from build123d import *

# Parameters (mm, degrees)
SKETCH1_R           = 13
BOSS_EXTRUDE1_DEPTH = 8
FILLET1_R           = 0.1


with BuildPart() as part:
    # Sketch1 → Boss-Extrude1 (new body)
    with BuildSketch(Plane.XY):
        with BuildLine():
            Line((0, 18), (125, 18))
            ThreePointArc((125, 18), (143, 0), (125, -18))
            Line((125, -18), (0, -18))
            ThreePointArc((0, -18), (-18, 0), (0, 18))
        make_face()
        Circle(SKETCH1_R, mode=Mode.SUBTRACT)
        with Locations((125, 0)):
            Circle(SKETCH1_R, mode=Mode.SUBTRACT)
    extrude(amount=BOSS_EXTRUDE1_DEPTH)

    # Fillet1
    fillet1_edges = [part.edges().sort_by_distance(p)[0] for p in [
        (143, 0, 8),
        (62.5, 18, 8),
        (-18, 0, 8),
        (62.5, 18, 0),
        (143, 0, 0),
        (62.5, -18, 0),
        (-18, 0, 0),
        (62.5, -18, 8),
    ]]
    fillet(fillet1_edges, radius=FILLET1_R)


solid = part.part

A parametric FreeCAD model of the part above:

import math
import FreeCAD as App
import Part
import Sketcher


def edges_at(feature, points):
    """Names of the edges that pass closest to the given points."""
    edges = feature.Shape.Edges
    near = lambda p: min(range(len(edges)), key=lambda i: edges[i].distToShape(Part.Vertex(*p))[0])
    return sorted({f"Edge{near(p) + 1}" for p in points})

doc = App.newDocument("Part")
params = doc.addObject("Spreadsheet::Sheet", "Params")
for row, (alias, value) in enumerate([
    ("sketch1_diameter", "26 mm"),
    ("sketch1_radius", "18 mm"),
    ("sketch1_width", "125 mm"),
    ("pad1_length", "8 mm"),
    ("fillet_radius", "0.1 mm"),
], start=1):
    params.set(f"A{row}", alias)
    params.set(f"B{row}", "=" + value)
    params.setAlias(f"B{row}", alias)

body = doc.addObject("PartDesign::Body", "Body")

# Sketch on XY plane
sketch1 = doc.addObject("Sketcher::SketchObject", "Sketch")
body.addObject(sketch1)
sketch1.AttachmentSupport = (doc.XY_Plane, [""])
sketch1.MapMode = "FlatFace"
sketch1.addGeometry(Part.LineSegment(App.Vector(125, 18, 0), App.Vector(0, 18, 0)), False)
sketch1.addGeometry(Part.ArcOfCircle(Part.Circle(App.Vector(0, 0, 0), App.Vector(0, 0, 1), 18), math.radians(90), math.radians(270)), False)
sketch1.addGeometry(Part.LineSegment(App.Vector(0, -18, 0), App.Vector(125, -18, 0)), False)
sketch1.addGeometry(Part.ArcOfCircle(Part.Circle(App.Vector(125, 0, 0), App.Vector(0, 0, 1), 18), math.radians(-90), math.radians(90)), False)
sketch1.addGeometry(Part.Circle(App.Vector(125, 0, 0), App.Vector(0, 0, 1), 13), False)
sketch1.addGeometry(Part.Circle(App.Vector(0, 0, 0), App.Vector(0, 0, 1), 13), False)
sketch1.addConstraint(Sketcher.Constraint("Tangent", 0, 2, 1, 1))
sketch1.addConstraint(Sketcher.Constraint("Tangent", 1, 2, 2, 1))
sketch1.addConstraint(Sketcher.Constraint("Tangent", 2, 2, 3, 1))
sketch1.addConstraint(Sketcher.Constraint("Tangent", 3, 2, 0, 1))
sketch1.addConstraint(Sketcher.Constraint("Horizontal", 0))
sketch1.addConstraint(Sketcher.Constraint("Horizontal", 2))
sketch1.addConstraint(Sketcher.Constraint("Coincident", 1, 3, -1, 1))
sketch1.addConstraint(Sketcher.Constraint("Coincident", 5, 3, -1, 1))
sketch1.addConstraint(Sketcher.Constraint("Coincident", 4, 3, 3, 3))
sketch1.addConstraint(Sketcher.Constraint("Equal", 4, 5))
sketch1.addConstraint(Sketcher.Constraint("Diameter", 4, 26.0))
sketch1.addConstraint(Sketcher.Constraint("Radius", 1, 18.0))
sketch1.addConstraint(Sketcher.Constraint("DistanceX", 0, 2, 0, 1, 125.0))
sketch1.setExpression("Constraints[10]", "Params.sketch1_diameter")
sketch1.setExpression("Constraints[11]", "Params.sketch1_radius")
sketch1.setExpression("Constraints[12]", "Params.sketch1_width")
pad1 = doc.addObject("PartDesign::Pad", "Pad")
body.addObject(pad1)
pad1.Profile = sketch1
pad1.setExpression("Length", "Params.pad1_length")
doc.recompute()

fillet = doc.addObject("PartDesign::Fillet", "Fillet")
body.addObject(fillet)
fillet.Base = (pad1, edges_at(pad1, [
    (143, 0, 8),
    (62.5, 18, 8),
    (-18, 0, 8),
    (62.5, 18, 0),
    (143, 0, 0),
    (62.5, -18, 0),
    (-18, 0, 0),
    (62.5, -18, 8),
]))
fillet.setExpression("Radius", "Params.fillet_radius")

doc.recompute()
